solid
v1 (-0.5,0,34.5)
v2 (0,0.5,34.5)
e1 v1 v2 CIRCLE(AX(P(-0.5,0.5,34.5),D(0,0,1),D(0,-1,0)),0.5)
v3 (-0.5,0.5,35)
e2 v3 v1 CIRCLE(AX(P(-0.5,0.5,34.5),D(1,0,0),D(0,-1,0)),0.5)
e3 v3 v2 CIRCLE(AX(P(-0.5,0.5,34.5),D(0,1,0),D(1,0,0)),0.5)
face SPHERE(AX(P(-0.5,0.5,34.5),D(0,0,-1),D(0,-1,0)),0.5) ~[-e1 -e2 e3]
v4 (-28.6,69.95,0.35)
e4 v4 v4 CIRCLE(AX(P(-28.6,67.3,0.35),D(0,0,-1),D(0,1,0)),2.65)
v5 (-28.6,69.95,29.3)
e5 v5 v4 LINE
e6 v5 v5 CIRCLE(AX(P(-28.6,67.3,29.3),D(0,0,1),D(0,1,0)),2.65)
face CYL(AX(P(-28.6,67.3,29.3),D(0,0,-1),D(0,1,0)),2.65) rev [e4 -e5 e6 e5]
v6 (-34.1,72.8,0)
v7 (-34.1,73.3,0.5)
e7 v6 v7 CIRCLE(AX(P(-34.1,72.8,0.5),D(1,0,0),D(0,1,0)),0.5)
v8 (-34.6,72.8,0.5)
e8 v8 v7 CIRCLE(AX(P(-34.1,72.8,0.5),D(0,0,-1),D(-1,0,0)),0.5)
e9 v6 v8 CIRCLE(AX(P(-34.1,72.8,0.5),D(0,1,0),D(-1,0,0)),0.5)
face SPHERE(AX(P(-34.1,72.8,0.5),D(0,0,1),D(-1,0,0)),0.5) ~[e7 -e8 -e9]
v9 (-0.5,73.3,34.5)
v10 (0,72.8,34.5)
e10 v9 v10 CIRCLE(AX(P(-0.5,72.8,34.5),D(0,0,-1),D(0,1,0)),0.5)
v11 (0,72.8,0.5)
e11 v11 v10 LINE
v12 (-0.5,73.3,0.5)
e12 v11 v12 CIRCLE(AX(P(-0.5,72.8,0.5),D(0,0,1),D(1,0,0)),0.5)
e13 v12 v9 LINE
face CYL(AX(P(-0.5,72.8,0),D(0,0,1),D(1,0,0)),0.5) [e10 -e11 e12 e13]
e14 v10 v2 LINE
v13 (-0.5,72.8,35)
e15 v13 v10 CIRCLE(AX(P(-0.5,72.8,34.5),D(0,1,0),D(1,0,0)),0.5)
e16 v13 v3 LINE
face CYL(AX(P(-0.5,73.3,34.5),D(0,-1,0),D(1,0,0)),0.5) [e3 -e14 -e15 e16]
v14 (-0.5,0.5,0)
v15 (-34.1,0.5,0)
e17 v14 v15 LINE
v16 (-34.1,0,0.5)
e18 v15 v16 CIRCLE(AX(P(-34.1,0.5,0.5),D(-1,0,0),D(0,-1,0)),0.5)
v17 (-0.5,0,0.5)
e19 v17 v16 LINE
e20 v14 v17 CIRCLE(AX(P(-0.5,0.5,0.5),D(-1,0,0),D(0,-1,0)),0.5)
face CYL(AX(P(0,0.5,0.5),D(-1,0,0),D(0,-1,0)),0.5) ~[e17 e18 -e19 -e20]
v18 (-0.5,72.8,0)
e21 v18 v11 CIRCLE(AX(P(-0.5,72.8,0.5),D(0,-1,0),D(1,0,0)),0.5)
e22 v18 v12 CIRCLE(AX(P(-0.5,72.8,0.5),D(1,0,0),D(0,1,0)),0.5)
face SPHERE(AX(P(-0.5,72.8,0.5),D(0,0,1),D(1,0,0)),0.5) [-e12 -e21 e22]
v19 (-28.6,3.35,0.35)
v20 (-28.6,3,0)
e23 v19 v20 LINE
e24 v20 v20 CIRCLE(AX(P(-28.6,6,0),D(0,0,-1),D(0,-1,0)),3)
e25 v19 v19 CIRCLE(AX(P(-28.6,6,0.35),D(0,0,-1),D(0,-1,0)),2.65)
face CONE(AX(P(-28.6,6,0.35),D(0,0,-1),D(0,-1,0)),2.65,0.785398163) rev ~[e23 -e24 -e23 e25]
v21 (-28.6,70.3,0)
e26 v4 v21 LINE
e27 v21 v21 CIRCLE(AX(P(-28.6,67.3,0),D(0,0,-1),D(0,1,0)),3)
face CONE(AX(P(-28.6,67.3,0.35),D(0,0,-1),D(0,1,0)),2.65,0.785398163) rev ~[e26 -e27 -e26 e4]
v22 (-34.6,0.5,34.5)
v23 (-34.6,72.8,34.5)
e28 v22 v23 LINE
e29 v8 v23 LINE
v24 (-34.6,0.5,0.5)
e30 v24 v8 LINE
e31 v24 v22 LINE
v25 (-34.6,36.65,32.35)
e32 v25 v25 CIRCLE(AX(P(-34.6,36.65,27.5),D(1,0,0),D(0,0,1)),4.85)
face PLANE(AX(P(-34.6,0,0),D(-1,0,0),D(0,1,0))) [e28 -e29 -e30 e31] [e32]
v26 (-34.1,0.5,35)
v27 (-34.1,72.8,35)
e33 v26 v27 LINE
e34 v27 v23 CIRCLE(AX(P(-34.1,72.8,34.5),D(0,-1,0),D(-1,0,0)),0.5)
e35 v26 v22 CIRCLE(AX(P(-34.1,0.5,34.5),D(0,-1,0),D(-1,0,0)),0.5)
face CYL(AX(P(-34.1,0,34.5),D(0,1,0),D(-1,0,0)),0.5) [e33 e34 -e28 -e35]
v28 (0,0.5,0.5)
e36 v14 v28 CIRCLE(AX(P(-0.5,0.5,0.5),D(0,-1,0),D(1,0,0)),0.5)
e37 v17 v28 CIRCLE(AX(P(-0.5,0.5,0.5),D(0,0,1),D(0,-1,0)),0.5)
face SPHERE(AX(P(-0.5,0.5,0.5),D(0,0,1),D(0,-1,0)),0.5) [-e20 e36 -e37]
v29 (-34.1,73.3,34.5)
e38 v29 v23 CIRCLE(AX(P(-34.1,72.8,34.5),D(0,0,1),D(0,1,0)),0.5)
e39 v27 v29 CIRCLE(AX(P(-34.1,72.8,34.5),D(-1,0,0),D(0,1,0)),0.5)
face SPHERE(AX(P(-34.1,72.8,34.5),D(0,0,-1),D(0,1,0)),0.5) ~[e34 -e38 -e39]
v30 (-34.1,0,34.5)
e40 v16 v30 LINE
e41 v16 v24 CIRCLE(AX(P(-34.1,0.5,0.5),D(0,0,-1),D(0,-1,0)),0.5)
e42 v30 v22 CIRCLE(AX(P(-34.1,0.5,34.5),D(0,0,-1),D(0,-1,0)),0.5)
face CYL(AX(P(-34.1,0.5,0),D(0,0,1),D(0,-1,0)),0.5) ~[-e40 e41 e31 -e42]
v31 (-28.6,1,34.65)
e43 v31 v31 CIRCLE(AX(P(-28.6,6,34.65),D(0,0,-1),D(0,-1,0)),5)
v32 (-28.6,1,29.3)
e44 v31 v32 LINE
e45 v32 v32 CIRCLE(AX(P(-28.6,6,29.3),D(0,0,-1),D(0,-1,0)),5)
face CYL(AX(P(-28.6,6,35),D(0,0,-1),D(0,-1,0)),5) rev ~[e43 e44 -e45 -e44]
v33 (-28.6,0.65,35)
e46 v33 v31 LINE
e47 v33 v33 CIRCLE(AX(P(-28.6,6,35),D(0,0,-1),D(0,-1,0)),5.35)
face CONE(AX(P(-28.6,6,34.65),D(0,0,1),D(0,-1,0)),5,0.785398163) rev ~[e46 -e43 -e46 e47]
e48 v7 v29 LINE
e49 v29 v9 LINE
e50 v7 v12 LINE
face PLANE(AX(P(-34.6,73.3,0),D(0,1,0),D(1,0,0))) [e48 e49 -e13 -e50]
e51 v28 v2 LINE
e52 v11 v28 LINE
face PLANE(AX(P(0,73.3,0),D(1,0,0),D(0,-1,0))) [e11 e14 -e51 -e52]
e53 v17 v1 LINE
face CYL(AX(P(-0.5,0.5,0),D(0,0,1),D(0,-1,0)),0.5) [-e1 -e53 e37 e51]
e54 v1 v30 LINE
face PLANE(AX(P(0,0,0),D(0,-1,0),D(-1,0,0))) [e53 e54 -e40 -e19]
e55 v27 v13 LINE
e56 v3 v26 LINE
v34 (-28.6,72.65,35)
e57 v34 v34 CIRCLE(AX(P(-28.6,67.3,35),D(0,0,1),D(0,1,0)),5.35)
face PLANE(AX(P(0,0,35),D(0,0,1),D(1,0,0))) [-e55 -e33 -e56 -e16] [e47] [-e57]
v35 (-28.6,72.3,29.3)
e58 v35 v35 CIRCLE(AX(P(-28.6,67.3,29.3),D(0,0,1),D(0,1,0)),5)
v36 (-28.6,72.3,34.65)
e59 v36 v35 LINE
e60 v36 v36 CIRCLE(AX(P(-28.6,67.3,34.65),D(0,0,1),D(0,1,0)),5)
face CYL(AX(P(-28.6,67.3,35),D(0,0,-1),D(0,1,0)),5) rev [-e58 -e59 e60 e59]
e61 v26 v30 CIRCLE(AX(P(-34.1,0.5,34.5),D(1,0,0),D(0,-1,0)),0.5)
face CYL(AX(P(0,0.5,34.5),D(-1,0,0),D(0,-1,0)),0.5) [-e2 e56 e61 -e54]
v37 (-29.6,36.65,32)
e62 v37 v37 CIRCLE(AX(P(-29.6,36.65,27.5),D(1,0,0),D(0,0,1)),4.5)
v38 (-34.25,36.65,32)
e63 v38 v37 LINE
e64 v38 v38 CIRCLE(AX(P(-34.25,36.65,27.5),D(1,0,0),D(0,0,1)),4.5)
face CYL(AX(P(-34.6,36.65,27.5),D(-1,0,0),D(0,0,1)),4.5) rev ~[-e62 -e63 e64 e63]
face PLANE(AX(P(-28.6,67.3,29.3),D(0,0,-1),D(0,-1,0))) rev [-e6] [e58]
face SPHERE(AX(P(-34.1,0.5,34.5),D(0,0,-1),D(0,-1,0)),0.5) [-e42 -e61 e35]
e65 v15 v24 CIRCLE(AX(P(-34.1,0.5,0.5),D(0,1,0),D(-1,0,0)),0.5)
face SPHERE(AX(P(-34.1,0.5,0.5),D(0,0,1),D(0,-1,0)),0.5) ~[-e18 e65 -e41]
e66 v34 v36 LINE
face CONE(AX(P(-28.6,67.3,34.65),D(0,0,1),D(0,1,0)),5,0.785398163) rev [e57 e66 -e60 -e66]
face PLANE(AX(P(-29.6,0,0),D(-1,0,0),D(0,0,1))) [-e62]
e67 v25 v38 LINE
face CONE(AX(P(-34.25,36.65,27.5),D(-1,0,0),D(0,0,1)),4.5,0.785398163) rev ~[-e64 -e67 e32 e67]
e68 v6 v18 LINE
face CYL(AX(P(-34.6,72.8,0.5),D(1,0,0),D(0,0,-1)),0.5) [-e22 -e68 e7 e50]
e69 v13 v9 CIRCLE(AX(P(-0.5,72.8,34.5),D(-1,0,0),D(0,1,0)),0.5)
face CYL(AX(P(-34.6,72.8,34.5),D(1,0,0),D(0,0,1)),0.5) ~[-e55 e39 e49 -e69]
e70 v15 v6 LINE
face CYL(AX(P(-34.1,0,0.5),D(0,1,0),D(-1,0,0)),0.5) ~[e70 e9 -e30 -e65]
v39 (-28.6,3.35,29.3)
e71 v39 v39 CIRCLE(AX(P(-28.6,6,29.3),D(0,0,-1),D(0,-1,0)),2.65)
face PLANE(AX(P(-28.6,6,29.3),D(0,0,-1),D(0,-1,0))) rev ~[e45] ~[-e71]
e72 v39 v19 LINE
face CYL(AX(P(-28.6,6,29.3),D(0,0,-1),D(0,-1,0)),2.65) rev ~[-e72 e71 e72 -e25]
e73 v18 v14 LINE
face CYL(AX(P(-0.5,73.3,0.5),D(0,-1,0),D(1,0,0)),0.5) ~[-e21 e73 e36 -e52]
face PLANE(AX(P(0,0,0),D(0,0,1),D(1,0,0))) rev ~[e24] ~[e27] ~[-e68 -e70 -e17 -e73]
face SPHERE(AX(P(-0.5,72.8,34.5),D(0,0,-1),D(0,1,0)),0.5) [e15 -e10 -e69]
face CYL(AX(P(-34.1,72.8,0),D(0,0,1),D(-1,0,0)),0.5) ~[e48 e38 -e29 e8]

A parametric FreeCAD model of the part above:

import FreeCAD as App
import Part
import Sketcher

V = App.Vector
Q = App.Units.Quantity


def edges_at(feature, points):
    """Names of the edges that pass closest to the given points."""
    edges = feature.Shape.Edges
    near = lambda p: min(range(len(edges)), key=lambda i: edges[i].distToShape(Part.Vertex(*p))[0])
    return sorted({f"Edge{near(p) + 1}" for p in points})

doc = App.newDocument("Part")
body = doc.addObject("PartDesign::Body", "Body")

# Sketch on XY plane
sketch1 = body.newObject("Sketcher::SketchObject", "Sketch")
sketch1.AttachmentSupport = (doc.getObject("XY_Plane"), [""])
sketch1.MapMode = "FlatFace"
sketch1.addGeometry([
    Part.LineSegment(V(-34.6, 0, 0), V(0, 0, 0)),
    Part.LineSegment(V(0, 0, 0), V(0, 73.3, 0)),
    Part.LineSegment(V(0, 73.3, 0), V(-34.6, 73.3, 0)),
    Part.LineSegment(V(-34.6, 73.3, 0), V(-34.6, 0, 0)),
], False)
sketch1.addConstraint([
    Sketcher.Constraint("Coincident", 0, 2, 1, 1),
    Sketcher.Constraint("Coincident", 1, 2, 2, 1),
    Sketcher.Constraint("Coincident", 2, 2, 3, 1),
    Sketcher.Constraint("Coincident", 3, 2, 0, 1),
    Sketcher.Constraint("Horizontal", 0),
    Sketcher.Constraint("Vertical", 1),
    Sketcher.Constraint("Horizontal", 2),
    Sketcher.Constraint("Vertical", 3),
    Sketcher.Constraint("Coincident", 0, 2, -1, 1),
    Sketcher.Constraint("DistanceX", 0, 1, 0, 2, Q("34.6 mm")),
    Sketcher.Constraint("DistanceY", 1, 1, 1, 2, Q("73.3 mm")),
])
pad1 = body.newObject("PartDesign::Pad", "Pad")
pad1.Profile = sketch1
pad1.Length = 35

# Sketch on XY plane
sketch2 = body.newObject("Sketcher::SketchObject", "Sketch001")
sketch2.AttachmentSupport = (doc.getObject("XY_Plane"), [""])
sketch2.MapMode = "FlatFace"
sketch2.AttachmentOffset = App.Placement(V(0, 0, 35), App.Rotation())
sketch2.addGeometry(Part.Circle(V(-28.6, 6, 0), V(0, 0, 1), 2.65), False)
sketch2.addConstraint([
    Sketcher.Constraint("Diameter", 0, Q("5.3 mm")),
    Sketcher.Constraint("DistanceY", -1, 1, 0, 3, Q("6 mm")),
    Sketcher.Constraint("DistanceX", 0, 3, -1, 1, Q("28.6 mm")),
])
doc.recompute()
hole = body.newObject("PartDesign::Hole", "Hole")
hole.Profile = sketch2
hole.ThreadType = "None"
hole.Diameter = 5.3
hole.DepthType = "ThroughAll"
hole.HoleCutType = "Counterbore"
hole.HoleCutDiameter = 10
hole.HoleCutDepth = 5.7
doc.recompute()

datumplane = body.newObject("PartDesign::Plane", "DatumPlane")
datumplane.AttachmentSupport = (doc.getObject("XZ_Plane"), [""])
datumplane.MapMode = "FlatFace"
datumplane.AttachmentOffset = App.Placement(V(0, 0, -36.65), App.Rotation())
mirrored = body.newObject("PartDesign::Mirrored", "Mirrored")
mirrored.Originals = [hole]
mirrored.MirrorPlane = (datumplane, [""])
body.Tip = mirrored

# Sketch on YZ plane
sketch3 = body.newObject("Sketcher::SketchObject", "Sketch002")
sketch3.AttachmentSupport = (doc.getObject("YZ_Plane"), [""])
sketch3.MapMode = "FlatFace"
sketch3.AttachmentOffset = App.Placement(V(0, 0, -34.6), App.Rotation())
sketch3.addGeometry(Part.Circle(V(36.65, 27.5, 0), V(0, 0, 1), 4.5), False)
sketch3.addConstraint([
    Sketcher.Constraint("Diameter", 0, Q("9 mm")),
    Sketcher.Constraint("DistanceY", -1, 1, 0, 3, Q("27.5 mm")),
    Sketcher.Constraint("DistanceX", -1, 1, 0, 3, Q("36.65 mm")),
])
pocket1 = body.newObject("PartDesign::Pocket", "Pocket")
pocket1.Profile = sketch3
pocket1.Length = 5
pocket1.Reversed = True
doc.recompute()

fillet = body.newObject("PartDesign::Fillet", "Fillet")
fillet.Base = (pocket1, edges_at(pocket1, [
    (0, 73.3, 17.5),
    (-34.6, 73.3, 17.5),
    (0, 0, 17.5),
    (-34.6, 0, 17.5),
    (-17.3, 0, 35),
    (-17.3, 0, 0),
    (0, 36.65, 0),
    (-34.6, 36.65, 0),
    (-17.3, 73.3, 0),
    (-17.3, 73.3, 35),
    (0, 36.65, 35),
    (-34.6, 36.65, 35),
]))
fillet.Radius = 0.5
doc.recompute()

chamfer = body.newObject("PartDesign::Chamfer", "Chamfer")
chamfer.Base = (fillet, edges_at(fillet, [(-28.6, 11, 35)]))
chamfer.Size = 0.35
doc.recompute()

chamfer2 = body.newObject("PartDesign::Chamfer", "Chamfer001")
chamfer2.Base = (chamfer, edges_at(chamfer, [(-28.6, 62.3, 35)]))
chamfer2.Size = 0.35
doc.recompute()

chamfer3 = body.newObject("PartDesign::Chamfer", "Chamfer002")
chamfer3.Base = (chamfer2, edges_at(chamfer2, [(-28.6, 8.65, 0), (-28.6, 64.65, 0)]))
chamfer3.Size = 0.35
doc.recompute()

chamfer4 = body.newObject("PartDesign::Chamfer", "Chamfer003")
chamfer4.Base = (chamfer3, edges_at(chamfer3, [(-34.6, 36.65, 23)]))
chamfer4.Size = 0.35

doc.recompute()
